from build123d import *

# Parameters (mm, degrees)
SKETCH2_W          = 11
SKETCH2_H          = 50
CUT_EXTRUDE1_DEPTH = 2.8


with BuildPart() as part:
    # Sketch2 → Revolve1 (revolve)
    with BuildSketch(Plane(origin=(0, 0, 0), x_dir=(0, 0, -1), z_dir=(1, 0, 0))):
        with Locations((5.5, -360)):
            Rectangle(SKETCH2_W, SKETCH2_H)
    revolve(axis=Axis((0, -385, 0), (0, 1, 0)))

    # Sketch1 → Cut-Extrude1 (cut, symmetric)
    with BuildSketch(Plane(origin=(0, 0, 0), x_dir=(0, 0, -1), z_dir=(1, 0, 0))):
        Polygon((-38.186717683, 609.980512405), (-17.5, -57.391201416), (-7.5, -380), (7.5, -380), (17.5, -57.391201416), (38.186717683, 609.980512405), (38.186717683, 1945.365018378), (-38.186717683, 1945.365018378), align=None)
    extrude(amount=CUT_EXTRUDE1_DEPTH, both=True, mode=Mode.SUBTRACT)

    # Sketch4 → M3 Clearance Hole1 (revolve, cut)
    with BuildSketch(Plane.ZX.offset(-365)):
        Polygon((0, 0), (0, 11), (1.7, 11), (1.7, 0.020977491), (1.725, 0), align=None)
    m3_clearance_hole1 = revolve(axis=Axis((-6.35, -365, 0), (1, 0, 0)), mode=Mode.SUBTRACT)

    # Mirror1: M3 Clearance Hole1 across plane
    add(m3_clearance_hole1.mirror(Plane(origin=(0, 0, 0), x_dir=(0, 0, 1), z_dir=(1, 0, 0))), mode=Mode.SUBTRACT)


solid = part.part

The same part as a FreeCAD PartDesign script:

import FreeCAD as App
import Part
import Sketcher
from FreeCAD import Vector
Q = App.Units.Quantity

doc = App.newDocument("Part")
body = doc.addObject("PartDesign::Body", "Body")

# Sketch on YZ plane
sketch1 = body.newObject("Sketcher::SketchObject", "Sketch")
sketch1.AttachmentSupport = (doc.getObject("YZ_Plane"), [""])
sketch1.MapMode = "FlatFace"
sketch1.addGeometry(Part.LineSegment(Vector(-335, 0, 0), Vector(-385, 0, 0)), False)
sketch1.addGeometry(Part.LineSegment(Vector(-385, 0, 0), Vector(-385, -11, 0)), False)
sketch1.addGeometry(Part.LineSegment(Vector(-385, -11, 0), Vector(-335, -11, 0)), False)
sketch1.addGeometry(Part.LineSegment(Vector(-335, -11, 0), Vector(-335, 0, 0)), False)
sketch1.addConstraint(Sketcher.Constraint("Coincident", 0, 2, 1, 1))
sketch1.addConstraint(Sketcher.Constraint("Coincident", 1, 2, 2, 1))
sketch1.addConstraint(Sketcher.Constraint("Coincident", 2, 2, 3, 1))
sketch1.addConstraint(Sketcher.Constraint("Coincident", 3, 2, 0, 1))
sketch1.addConstraint(Sketcher.Constraint("Horizontal", 0))
sketch1.addConstraint(Sketcher.Constraint("Vertical", 1))
sketch1.addConstraint(Sketcher.Constraint("Horizontal", 2))
sketch1.addConstraint(Sketcher.Constraint("Vertical", 3))
sketch1.addConstraint(Sketcher.Constraint("PointOnObject", 0, 2, -1))
sketch1.addConstraint(Sketcher.Constraint("DistanceX", 0, 2, 0, 1, Q("50 mm")))
sketch1.addConstraint(Sketcher.Constraint("DistanceY", 1, 2, 1, 1, Q("11 mm")))
sketch1.addConstraint(Sketcher.Constraint("DistanceX", 0, 2, -1, 1, Q("385 mm")))
revolution = body.newObject("PartDesign::Revolution", "Revolution")
revolution.Profile = sketch1
revolution.ReferenceAxis = (sketch1, ["H_Axis"])
revolution.Angle = 360

# Sketch on YZ plane
sketch2 = body.newObject("Sketcher::SketchObject", "Sketch001")
sketch2.AttachmentSupport = (doc.getObject("YZ_Plane"), [""])
sketch2.MapMode = "FlatFace"
sketch2.addGeometry(Part.LineSegment(Vector(610, 38, 0), Vector(-380, 8, 0)), False)
sketch2.addGeometry(Part.LineSegment(Vector(-380, 8, 0), Vector(-380, -8, 0)), False)
sketch2.addGeometry(Part.LineSegment(Vector(-380, -8, 0), Vector(610, -38, 0)), False)
sketch2.addGeometry(Part.LineSegment(Vector(610, -38, 0), Vector(1945, -38, 0)), False)
sketch2.addGeometry(Part.LineSegment(Vector(1945, -38, 0), Vector(1945, 38, 0)), False)
sketch2.addGeometry(Part.LineSegment(Vector(1945, 38, 0), Vector(610, 38, 0)), False)
sketch2.addConstraint(Sketcher.Constraint("Coincident", 0, 2, 1, 1))
sketch2.addConstraint(Sketcher.Constraint("Coincident", 1, 2, 2, 1))
sketch2.addConstraint(Sketcher.Constraint("Coincident", 2, 2, 3, 1))
sketch2.addConstraint(Sketcher.Constraint("Coincident", 3, 2, 4, 1))
sketch2.addConstraint(Sketcher.Constraint("Coincident", 4, 2, 5, 1))
sketch2.addConstraint(Sketcher.Constraint("Coincident", 5, 2, 0, 1))
sketch2.addConstraint(Sketcher.Constraint("Vertical", 1))
sketch2.addConstraint(Sketcher.Constraint("Horizontal", 3))
sketch2.addConstraint(Sketcher.Constraint("Vertical", 4))
sketch2.addConstraint(Sketcher.Constraint("Horizontal", 5))
sketch2.addConstraint(Sketcher.Constraint("Symmetric", 2, 2, 5, 2, -1))
sketch2.addConstraint(Sketcher.Constraint("Equal", 0, 2))
sketch2.addConstraint(Sketcher.Constraint("DistanceY", 1, 2, 1, 1, Q("15 mm")))
sketch2.addConstraint(Sketcher.Constraint("DistanceX", 0, 2, -1, 1, Q("380 mm")))
sketch2.addConstraint(Sketcher.Constraint("Distance", 0, Q("990.456001 mm")))
sketch2.addConstraint(Sketcher.Constraint("DistanceX", 3, 1, 3, 2, Q("1335.384506 mm")))
sketch2.addConstraint(Sketcher.Constraint("DistanceY", 4, 1, 4, 2, Q("76.373435 mm")))
pocket1 = body.newObject("PartDesign::Pocket", "Pocket")
pocket1.Profile = sketch2
pocket1.Length = 5.6
pocket1.Midplane = True

# Sketch on XZ plane
sketch3 = body.newObject("Sketcher::SketchObject", "Sketch002")
sketch3.AttachmentSupport = (doc.getObject("XZ_Plane"), [""])
sketch3.MapMode = "FlatFace"
sketch3.AttachmentOffset = App.Placement(Vector(0, 0, 365), App.Rotation())
sketch3.addGeometry(Part.LineSegment(Vector(11, 0, 0), Vector(0, 0, 0)), False)
sketch3.addGeometry(Part.LineSegment(Vector(0, 0, 0), Vector(0, 1.725, 0)), False)
sketch3.addGeometry(Part.LineSegment(Vector(0, 1.725, 0), Vector(0.021, 1.7, 0)), False)
sketch3.addGeometry(Part.LineSegment(Vector(0.021, 1.7, 0), Vector(11, 1.7, 0)), False)
sketch3.addGeometry(Part.LineSegment(Vector(11, 1.7, 0), Vector(11, 0, 0)), False)
sketch3.addConstraint(Sketcher.Constraint("Coincident", 0, 2, 1, 1))
sketch3.addConstraint(Sketcher.Constraint("Coincident", 1, 2, 2, 1))
sketch3.addConstraint(Sketcher.Constraint("Coincident", 2, 2, 3, 1))
sketch3.addConstraint(Sketcher.Constraint("Coincident", 3, 2, 4, 1))
sketch3.addConstraint(Sketcher.Constraint("Coincident", 4, 2, 0, 1))
sketch3.addConstraint(Sketcher.Constraint("Horizontal", 0))
sketch3.addConstraint(Sketcher.Constraint("Vertical", 1))
sketch3.addConstraint(Sketcher.Constraint("Horizontal", 3))
sketch3.addConstraint(Sketcher.Constraint("Vertical", 4))
sketch3.addConstraint(Sketcher.Constraint("Coincident", 0, 2, -1, 1))
sketch3.addConstraint(Sketcher.Constraint("DistanceX", 0, 2, 0, 1, Q("11 mm")))
sketch3.addConstraint(Sketcher.Constraint("Angle", 2, Q("-50 deg")))
sketch3.addConstraint(Sketcher.Constraint("DistanceY", 4, 2, 4, 1, Q("1.7 mm")))
sketch3.addConstraint(Sketcher.Constraint("DistanceY", 1, 1, 1, 2, Q("1.725 mm")))
groove = body.newObject("PartDesign::Groove", "Groove")
groove.Profile = sketch3
groove.ReferenceAxis = (sketch3, ["H_Axis"])
groove.Angle = 360
doc.recompute()

mirrored = body.newObject("PartDesign::Mirrored", "Mirrored")
mirrored.Originals = [groove]
mirrored.MirrorPlane = (doc.getObject("YZ_Plane"), [""])
body.Tip = mirrored

doc.recompute()
